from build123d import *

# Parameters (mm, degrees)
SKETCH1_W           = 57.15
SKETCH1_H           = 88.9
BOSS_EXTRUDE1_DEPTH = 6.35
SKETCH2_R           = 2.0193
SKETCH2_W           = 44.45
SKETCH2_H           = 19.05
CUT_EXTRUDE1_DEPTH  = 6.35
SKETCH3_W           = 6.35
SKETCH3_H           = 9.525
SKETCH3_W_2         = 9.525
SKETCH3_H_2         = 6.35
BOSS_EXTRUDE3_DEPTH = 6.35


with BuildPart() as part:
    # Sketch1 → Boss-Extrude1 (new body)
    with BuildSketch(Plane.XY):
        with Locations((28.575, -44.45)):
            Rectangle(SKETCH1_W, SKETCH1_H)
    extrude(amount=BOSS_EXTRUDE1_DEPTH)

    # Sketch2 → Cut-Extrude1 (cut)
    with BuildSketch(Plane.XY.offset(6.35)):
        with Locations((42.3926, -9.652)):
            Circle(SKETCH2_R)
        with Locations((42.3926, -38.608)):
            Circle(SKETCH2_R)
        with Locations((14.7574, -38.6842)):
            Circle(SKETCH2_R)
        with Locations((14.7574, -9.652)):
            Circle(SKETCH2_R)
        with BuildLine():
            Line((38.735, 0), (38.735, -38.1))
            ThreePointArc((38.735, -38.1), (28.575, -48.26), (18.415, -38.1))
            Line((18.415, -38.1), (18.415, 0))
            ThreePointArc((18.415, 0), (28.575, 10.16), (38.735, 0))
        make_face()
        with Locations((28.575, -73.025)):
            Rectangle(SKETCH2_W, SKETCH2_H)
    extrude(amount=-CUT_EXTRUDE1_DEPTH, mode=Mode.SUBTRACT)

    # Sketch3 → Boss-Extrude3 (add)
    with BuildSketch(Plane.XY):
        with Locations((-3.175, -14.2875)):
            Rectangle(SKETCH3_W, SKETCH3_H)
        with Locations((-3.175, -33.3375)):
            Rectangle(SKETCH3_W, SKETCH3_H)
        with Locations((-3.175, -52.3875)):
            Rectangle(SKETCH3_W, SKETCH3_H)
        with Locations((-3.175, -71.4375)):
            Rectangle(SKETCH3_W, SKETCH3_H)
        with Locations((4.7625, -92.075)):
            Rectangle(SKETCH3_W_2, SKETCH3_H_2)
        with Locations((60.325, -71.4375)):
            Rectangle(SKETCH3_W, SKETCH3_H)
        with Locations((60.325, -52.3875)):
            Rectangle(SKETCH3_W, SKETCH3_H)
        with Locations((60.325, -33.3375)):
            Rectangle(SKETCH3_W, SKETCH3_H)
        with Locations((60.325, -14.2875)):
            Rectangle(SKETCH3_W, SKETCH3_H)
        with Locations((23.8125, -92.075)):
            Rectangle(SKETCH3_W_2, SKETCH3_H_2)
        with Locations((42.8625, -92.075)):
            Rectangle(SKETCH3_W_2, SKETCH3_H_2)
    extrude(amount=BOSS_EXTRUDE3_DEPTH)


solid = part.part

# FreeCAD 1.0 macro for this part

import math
import FreeCAD as App
import Part
import Sketcher
from FreeCAD import Vector
Q = App.Units.Quantity

doc = App.newDocument("Part")
body = doc.addObject("PartDesign::Body", "Body")

sketch1 = doc.addObject("Sketcher::SketchObject", "Sketch")
body.addObject(sketch1)
sketch1.AttachmentSupport = (doc.XY_Plane, [""])
sketch1.MapMode = "FlatFace"
sketch1.addGeometry(Part.LineSegment(Vector(0, 0, 0), Vector(0, -89, 0)), False)
sketch1.addGeometry(Part.LineSegment(Vector(0, -89, 0), Vector(57, -89, 0)), False)
sketch1.addGeometry(Part.LineSegment(Vector(57, -89, 0), Vector(57, 0, 0)), False)
sketch1.addGeometry(Part.LineSegment(Vector(57, 0, 0), Vector(0, 0, 0)), False)
sketch1.addConstraint(Sketcher.Constraint("Coincident", 0, 2, 1, 1))
sketch1.addConstraint(Sketcher.Constraint("Coincident", 1, 2, 2, 1))
sketch1.addConstraint(Sketcher.Constraint("Coincident", 2, 2, 3, 1))
sketch1.addConstraint(Sketcher.Constraint("Coincident", 3, 2, 0, 1))
sketch1.addConstraint(Sketcher.Constraint("Vertical", 0))
sketch1.addConstraint(Sketcher.Constraint("Horizontal", 1))
sketch1.addConstraint(Sketcher.Constraint("Vertical", 2))
sketch1.addConstraint(Sketcher.Constraint("Horizontal", 3))
sketch1.addConstraint(Sketcher.Constraint("Coincident", 3, 2, -1, 1))
sketch1.addConstraint(Sketcher.Constraint("DistanceY", 0, 2, 0, 1, Q("3.5 in")))
sketch1.addConstraint(Sketcher.Constraint("DistanceX", 1, 1, 1, 2, Q("2.25 in")))
pad1 = doc.addObject("PartDesign::Pad", "Pad")
body.addObject(pad1)
pad1.Profile = sketch1
pad1.Length = Q("0.25 in")

sketch2 = doc.addObject("Sketcher::SketchObject", "Sketch001")
body.addObject(sketch2)
sketch2.AttachmentSupport = (doc.XY_Plane, [""])
sketch2.MapMode = "FlatFace"
sketch2.AttachmentOffset = App.Placement(Vector(0, 0, 0.25 * 25.4), App.Rotation())
sketch2.addGeometry(Part.Circle(Vector(42.4, -9.7, 0), Vector(0, 0, 1), 2), False)
sketch2.addGeometry(Part.Circle(Vector(42.4, -38.6, 0), Vector(0, 0, 1), 2), False)
sketch2.addGeometry(Part.Circle(Vector(14.8, -38.7, 0), Vector(0, 0, 1), 2), False)
sketch2.addGeometry(Part.Circle(Vector(14.8, -9.7, 0), Vector(0, 0, 1), 2), False)
sketch2.addGeometry(Part.LineSegment(Vector(38.7, -38.1, 0), Vector(38.7, 0, 0)), False)
sketch2.addGeometry(Part.ArcOfCircle(Part.Circle(Vector(28.6, 0, 0), Vector(0, 0, 1), 10.2), math.radians(0), math.radians(180)), False)
sketch2.addGeometry(Part.LineSegment(Vector(18.4, 0, 0), Vector(18.4, -38.1, 0)), False)
sketch2.addGeometry(Part.ArcOfCircle(Part.Circle(Vector(28.6, -38.1, 0), Vector(0, 0, 1), 10.2), math.radians(180), math.radians(360)), False)
sketch2.addGeometry(Part.LineSegment(Vector(6.3, -63.5, 0), Vector(6.3, -82.5, 0)), False)
sketch2.addGeometry(Part.LineSegment(Vector(6.3, -82.5, 0), Vector(50.8, -82.5, 0)), False)
sketch2.addGeometry(Part.LineSegment(Vector(50.8, -82.5, 0), Vector(50.8, -63.5, 0)), False)
sketch2.addGeometry(Part.LineSegment(Vector(50.8, -63.5, 0), Vector(6.3, -63.5, 0)), False)
sketch2.addConstraint(Sketcher.Constraint("Tangent", 4, 2, 5, 1))
sketch2.addConstraint(Sketcher.Constraint("Tangent", 5, 2, 6, 1))
sketch2.addConstraint(Sketcher.Constraint("Tangent", 6, 2, 7, 1))
sketch2.addConstraint(Sketcher.Constraint("Tangent", 7, 2, 4, 1))
sketch2.addConstraint(Sketcher.Constraint("Coincident", 8, 2, 9, 1))
sketch2.addConstraint(Sketcher.Constraint("Coincident", 9, 2, 10, 1))
sketch2.addConstraint(Sketcher.Constraint("Coincident", 10, 2, 11, 1))
sketch2.addConstraint(Sketcher.Constraint("Coincident", 11, 2, 8, 1))
sketch2.addConstraint(Sketcher.Constraint("Vertical", 4))
sketch2.addConstraint(Sketcher.Constraint("Vertical", 6))
sketch2.addConstraint(Sketcher.Constraint("Vertical", 8))
sketch2.addConstraint(Sketcher.Constraint("Horizontal", 9))
sketch2.addConstraint(Sketcher.Constraint("Vertical", 10))
sketch2.addConstraint(Sketcher.Constraint("Horizontal", 11))
sketch2.addConstraint(Sketcher.Constraint("Equal", 0, 1))
sketch2.addConstraint(Sketcher.Constraint("Equal", 1, 2))
sketch2.addConstraint(Sketcher.Constraint("Equal", 2, 3))
sketch2.addConstraint(Sketcher.Constraint("PointOnObject", 5, 3, -1))
sketch2.addConstraint(Sketcher.Constraint("Horizontal", 0, 3, 3, 3))
sketch2.addConstraint(Sketcher.Constraint("Vertical", 0, 3, 1, 3))
sketch2.addConstraint(Sketcher.Constraint("Vertical", 2, 3, 3, 3))
sketch2.addConstraint(Sketcher.Constraint("Radius", 5, Q("0.4 in")))
sketch2.addConstraint(Sketcher.Constraint("Diameter", 0, Q("0.159 in")))
sketch2.addConstraint(Sketcher.Constraint("DistanceY", 4, 1, 4, 2, Q("1.5 in")))
sketch2.addConstraint(Sketcher.Constraint("DistanceX", -1, 1, 9, 2, Q("2 in")))
sketch2.addConstraint(Sketcher.Constraint("DistanceY", 10, 2, 7, 2, Q("1 in")))
sketch2.addConstraint(Sketcher.Constraint("DistanceX", 9, 1, 9, 2, Q("1.75 in")))
sketch2.addConstraint(Sketcher.Constraint("DistanceY", 8, 2, 8, 1, Q("0.75 in")))
sketch2.addConstraint(Sketcher.Constraint("DistanceY", 0, 3, -1, 1, Q("0.38 in")))
sketch2.addConstraint(Sketcher.Constraint("DistanceY", 1, 3, -1, 1, Q("1.52 in")))
sketch2.addConstraint(Sketcher.Constraint("DistanceX", -1, 1, 0, 3, Q("1.669 in")))
sketch2.addConstraint(Sketcher.Constraint("DistanceX", -1, 1, 2, 3, Q("0.581 in")))
sketch2.addConstraint(Sketcher.Constraint("DistanceY", 2, 3, -1, 1, Q("1.523 in")))
sketch2.addConstraint(Sketcher.Constraint("DistanceX", -1, 1, 5, 3, Q("1.125 in")))
pocket1 = doc.addObject("PartDesign::Pocket", "Pocket")
body.addObject(pocket1)
pocket1.Profile = sketch2
pocket1.Length = Q("0.25 in")

sketch3 = doc.addObject("Sketcher::SketchObject", "Sketch002")
body.addObject(sketch3)
sketch3.AttachmentSupport = (doc.XY_Plane, [""])
sketch3.MapMode = "FlatFace"
sketch3.addGeometry(Part.LineSegment(Vector(-6, -10, 0), Vector(-6, -19, 0)), False)
sketch3.addGeometry(Part.LineSegment(Vector(-6, -19, 0), Vector(0, -19, 0)), False)
sketch3.addGeometry(Part.LineSegment(Vector(0, -19, 0), Vector(0, -10, 0)), False)
sketch3.addGeometry(Part.LineSegment(Vector(0, -10, 0), Vector(-6, -10, 0)), False)
sketch3.addGeometry(Part.LineSegment(Vector(-6, -29, 0), Vector(-6, -38, 0)), False)
sketch3.addGeometry(Part.LineSegment(Vector(-6, -38, 0), Vector(0, -38, 0)), False)
sketch3.addGeometry(Part.LineSegment(Vector(0, -38, 0), Vector(0, -29, 0)), False)
sketch3.addGeometry(Part.LineSegment(Vector(0, -29, 0), Vector(-6, -29, 0)), False)
sketch3.addGeometry(Part.LineSegment(Vector(-6, -48, 0), Vector(-6, -57, 0)), False)
sketch3.addGeometry(Part.LineSegment(Vector(-6, -57, 0), Vector(0, -57, 0)), False)
sketch3.addGeometry(Part.LineSegment(Vector(0, -57, 0), Vector(0, -48, 0)), False)
sketch3.addGeometry(Part.LineSegment(Vector(0, -48, 0), Vector(-6, -48, 0)), False)
sketch3.addGeometry(Part.LineSegment(Vector(-6, -67, 0), Vector(-6, -76, 0)), False)
sketch3.addGeometry(Part.LineSegment(Vector(-6, -76, 0), Vector(0, -76, 0)), False)
sketch3.addGeometry(Part.LineSegment(Vector(0, -76, 0), Vector(0, -67, 0)), False)
sketch3.addGeometry(Part.LineSegment(Vector(0, -67, 0), Vector(-6, -67, 0)), False)
sketch3.addGeometry(Part.LineSegment(Vector(0, -89, 0), Vector(0, -95, 0)), False)
sketch3.addGeometry(Part.LineSegment(Vector(0, -95, 0), Vector(10, -95, 0)), False)
sketch3.addGeometry(Part.LineSegment(Vector(10, -95, 0), Vector(10, -89, 0)), False)
sketch3.addGeometry(Part.LineSegment(Vector(10, -89, 0), Vector(0, -89, 0)), False)
sketch3.addGeometry(Part.LineSegment(Vector(57, -67, 0), Vector(57, -76, 0)), False)
sketch3.addGeometry(Part.LineSegment(Vector(57, -76, 0), Vector(64, -76, 0)), False)
sketch3.addGeometry(Part.LineSegment(Vector(64, -76, 0), Vector(64, -67, 0)), False)
sketch3.addGeometry(Part.LineSegment(Vector(64, -67, 0), Vector(57, -67, 0)), False)
sketch3.addGeometry(Part.LineSegment(Vector(57, -48, 0), Vector(57, -57, 0)), False)
sketch3.addGeometry(Part.LineSegment(Vector(57, -57, 0), Vector(64, -57, 0)), False)
sketch3.addGeometry(Part.LineSegment(Vector(64, -57, 0), Vector(64, -48, 0)), False)
sketch3.addGeometry(Part.LineSegment(Vector(64, -48, 0), Vector(57, -48, 0)), False)
sketch3.addGeometry(Part.LineSegment(Vector(57, -29, 0), Vector(57, -38, 0)), False)
sketch3.addGeometry(Part.LineSegment(Vector(57, -38, 0), Vector(64, -38, 0)), False)
sketch3.addGeometry(Part.LineSegment(Vector(64, -38, 0), Vector(64, -29, 0)), False)
sketch3.addGeometry(Part.LineSegment(Vector(64, -29, 0), Vector(57, -29, 0)), False)
sketch3.addGeometry(Part.LineSegment(Vector(57, -10, 0), Vector(57, -19, 0)), False)
sketch3.addGeometry(Part.LineSegment(Vector(57, -19, 0), Vector(64, -19, 0)), False)
sketch3.addGeometry(Part.LineSegment(Vector(64, -19, 0), Vector(64, -10, 0)), False)
sketch3.addGeometry(Part.LineSegment(Vector(64, -10, 0), Vector(57, -10, 0)), False)
sketch3.addGeometry(Part.LineSegment(Vector(19, -89, 0), Vector(19, -95, 0)), False)
sketch3.addGeometry(Part.LineSegment(Vector(19, -95, 0), Vector(29, -95, 0)), False)
sketch3.addGeometry(Part.LineSegment(Vector(29, -95, 0), Vector(29, -89, 0)), False)
sketch3.addGeometry(Part.LineSegment(Vector(29, -89, 0), Vector(19, -89, 0)), False)
sketch3.addGeometry(Part.LineSegment(Vector(38, -89, 0), Vector(38, -95, 0)), False)
sketch3.addGeometry(Part.LineSegment(Vector(38, -95, 0), Vector(48, -95, 0)), False)
sketch3.addGeometry(Part.LineSegment(Vector(48, -95, 0), Vector(48, -89, 0)), False)
sketch3.addGeometry(Part.LineSegment(Vector(48, -89, 0), Vector(38, -89, 0)), False)
sketch3.addConstraint(Sketcher.Constraint("Coincident", 0, 2, 1, 1))
sketch3.addConstraint(Sketcher.Constraint("Coincident", 1, 2, 2, 1))
sketch3.addConstraint(Sketcher.Constraint("Coincident", 2, 2, 3, 1))
sketch3.addConstraint(Sketcher.Constraint("Coincident", 3, 2, 0, 1))
sketch3.addConstraint(Sketcher.Constraint("Coincident", 4, 2, 5, 1))
sketch3.addConstraint(Sketcher.Constraint("Coincident", 5, 2, 6, 1))
sketch3.addConstraint(Sketcher.Constraint("Coincident", 6, 2, 7, 1))
sketch3.addConstraint(Sketcher.Constraint("Coincident", 7, 2, 4, 1))
sketch3.addConstraint(Sketcher.Constraint("Coincident", 8, 2, 9, 1))
sketch3.addConstraint(Sketcher.Constraint("Coincident", 9, 2, 10, 1))
sketch3.addConstraint(Sketcher.Constraint("Coincident", 10, 2, 11, 1))
sketch3.addConstraint(Sketcher.Constraint("Coincident", 11, 2, 8, 1))
sketch3.addConstraint(Sketcher.Constraint("Coincident", 12, 2, 13, 1))
sketch3.addConstraint(Sketcher.Constraint("Coincident", 13, 2, 14, 1))
sketch3.addConstraint(Sketcher.Constraint("Coincident", 14, 2, 15, 1))
sketch3.addConstraint(Sketcher.Constraint("Coincident", 15, 2, 12, 1))
sketch3.addConstraint(Sketcher.Constraint("Coincident", 16, 2, 17, 1))
sketch3.addConstraint(Sketcher.Constraint("Coincident", 17, 2, 18, 1))
sketch3.addConstraint(Sketcher.Constraint("Coincident", 18, 2, 19, 1))
sketch3.addConstraint(Sketcher.Constraint("Coincident", 19, 2, 16, 1))
sketch3.addConstraint(Sketcher.Constraint("Coincident", 20, 2, 21, 1))
sketch3.addConstraint(Sketcher.Constraint("Coincident", 21, 2, 22, 1))
sketch3.addConstraint(Sketcher.Constraint("Coincident", 22, 2, 23, 1))
sketch3.addConstraint(Sketcher.Constraint("Coincident", 23, 2, 20, 1))
sketch3.addConstraint(Sketcher.Constraint("Coincident", 24, 2, 25, 1))
sketch3.addConstraint(Sketcher.Constraint("Coincident", 25, 2, 26, 1))
sketch3.addConstraint(Sketcher.Constraint("Coincident", 26, 2, 27, 1))
sketch3.addConstraint(Sketcher.Constraint("Coincident", 27, 2, 24, 1))
sketch3.addConstraint(Sketcher.Constraint("Coincident", 28, 2, 29, 1))
sketch3.addConstraint(Sketcher.Constraint("Coincident", 29, 2, 30, 1))
sketch3.addConstraint(Sketcher.Constraint("Coincident", 30, 2, 31, 1))
sketch3.addConstraint(Sketcher.Constraint("Coincident", 31, 2, 28, 1))
sketch3.addConstraint(Sketcher.Constraint("Coincident", 32, 2, 33, 1))
sketch3.addConstraint(Sketcher.Constraint("Coincident", 33, 2, 34, 1))
sketch3.addConstraint(Sketcher.Constraint("Coincident", 34, 2, 35, 1))
sketch3.addConstraint(Sketcher.Constraint("Coincident", 35, 2, 32, 1))
sketch3.addConstraint(Sketcher.Constraint("Coincident", 36, 2, 37, 1))
sketch3.addConstraint(Sketcher.Constraint("Coincident", 37, 2, 38, 1))
sketch3.addConstraint(Sketcher.Constraint("Coincident", 38, 2, 39, 1))
sketch3.addConstraint(Sketcher.Constraint("Coincident", 39, 2, 36, 1))
sketch3.addConstraint(Sketcher.Constraint("Coincident", 40, 2, 41, 1))
sketch3.addConstraint(Sketcher.Constraint("Coincident", 41, 2, 42, 1))
sketch3.addConstraint(Sketcher.Constraint("Coincident", 42, 2, 43, 1))
sketch3.addConstraint(Sketcher.Constraint("Coincident", 43, 2, 40, 1))
sketch3.addConstraint(Sketcher.Constraint("Vertical", 0))
sketch3.addConstraint(Sketcher.Constraint("Horizontal", 1))
sketch3.addConstraint(Sketcher.Constraint("Vertical", 2))
sketch3.addConstraint(Sketcher.Constraint("Horizontal", 3))
sketch3.addConstraint(Sketcher.Constraint("Vertical", 4))
sketch3.addConstraint(Sketcher.Constraint("Horizontal", 5))
sketch3.addConstraint(Sketcher.Constraint("Vertical", 6))
sketch3.addConstraint(Sketcher.Constraint("Horizontal", 7))
sketch3.addConstraint(Sketcher.Constraint("Vertical", 8))
sketch3.addConstraint(Sketcher.Constraint("Horizontal", 9))
sketch3.addConstraint(Sketcher.Constraint("Vertical", 10))
sketch3.addConstraint(Sketcher.Constraint("Horizontal", 11))
sketch3.addConstraint(Sketcher.Constraint("Vertical", 12))
sketch3.addConstraint(Sketcher.Constraint("Horizontal", 13))
sketch3.addConstraint(Sketcher.Constraint("Vertical", 14))
sketch3.addConstraint(Sketcher.Constraint("Horizontal", 15))
sketch3.addConstraint(Sketcher.Constraint("Vertical", 16))
sketch3.addConstraint(Sketcher.Constraint("Horizontal", 17))
sketch3.addConstraint(Sketcher.Constraint("Vertical", 18))
sketch3.addConstraint(Sketcher.Constraint("Horizontal", 19))
sketch3.addConstraint(Sketcher.Constraint("Vertical", 20))
sketch3.addConstraint(Sketcher.Constraint("Horizontal", 21))
sketch3.addConstraint(Sketcher.Constraint("Vertical", 22))
sketch3.addConstraint(Sketcher.Constraint("Horizontal", 23))
sketch3.addConstraint(Sketcher.Constraint("Vertical", 24))
sketch3.addConstraint(Sketcher.Constraint("Horizontal", 25))
sketch3.addConstraint(Sketcher.Constraint("Vertical", 26))
sketch3.addConstraint(Sketcher.Constraint("Horizontal", 27))
sketch3.addConstraint(Sketcher.Constraint("Vertical", 28))
sketch3.addConstraint(Sketcher.Constraint("Horizontal", 29))
sketch3.addConstraint(Sketcher.Constraint("Vertical", 30))
sketch3.addConstraint(Sketcher.Constraint("Horizontal", 31))
sketch3.addConstraint(Sketcher.Constraint("Vertical", 32))
sketch3.addConstraint(Sketcher.Constraint("Horizontal", 33))
sketch3.addConstraint(Sketcher.Constraint("Vertical", 34))
sketch3.addConstraint(Sketcher.Constraint("Horizontal", 35))
sketch3.addConstraint(Sketcher.Constraint("Vertical", 36))
sketch3.addConstraint(Sketcher.Constraint("Horizontal", 37))
sketch3.addConstraint(Sketcher.Constraint("Vertical", 38))
sketch3.addConstraint(Sketcher.Constraint("Horizontal", 39))
sketch3.addConstraint(Sketcher.Constraint("Vertical", 40))
sketch3.addConstraint(Sketcher.Constraint("Horizontal", 41))
sketch3.addConstraint(Sketcher.Constraint("Vertical", 42))
sketch3.addConstraint(Sketcher.Constraint("Horizontal", 43))
sketch3.addConstraint(Sketcher.Constraint("PointOnObject", 1, 2, -2))
sketch3.addConstraint(Sketcher.Constraint("PointOnObject", 5, 2, -2))
sketch3.addConstraint(Sketcher.Constraint("PointOnObject", 9, 2, -2))
sketch3.addConstraint(Sketcher.Constraint("PointOnObject", 13, 2, -2))
sketch3.addConstraint(Sketcher.Constraint("PointOnObject", 16, 2, -2))
sketch3.addConstraint(Sketcher.Constraint("Horizontal", 13, 2, 20, 2))
sketch3.addConstraint(Sketcher.Constraint("Horizontal", 15, 2, 22, 2))
sketch3.addConstraint(Sketcher.Constraint("Horizontal", 9, 2, 24, 2))
sketch3.addConstraint(Sketcher.Constraint("Horizontal", 11, 2, 26, 2))
sketch3.addConstraint(Sketcher.Constraint("Horizontal", 5, 2, 28, 2))
sketch3.addConstraint(Sketcher.Constraint("Horizontal", 7, 2, 30, 2))
sketch3.addConstraint(Sketcher.Constraint("Horizontal", 1, 2, 32, 2))
sketch3.addConstraint(Sketcher.Constraint("Horizontal", 3, 2, 34, 2))
sketch3.addConstraint(Sketcher.Constraint("Horizontal", 17, 2, 36, 2))
sketch3.addConstraint(Sketcher.Constraint("Horizontal", 19, 2, 38, 2))
sketch3.addConstraint(Sketcher.Constraint("Horizontal", 37, 2, 40, 2))
sketch3.addConstraint(Sketcher.Constraint("Horizontal", 39, 2, 42, 2))
sketch3.addConstraint(Sketcher.Constraint("Vertical", 3, 2, 4, 2))
sketch3.addConstraint(Sketcher.Constraint("Vertical", 7, 2, 8, 2))
sketch3.addConstraint(Sketcher.Constraint("Vertical", 11, 2, 12, 2))
sketch3.addConstraint(Sketcher.Constraint("Vertical", 23, 2, 24, 2))
sketch3.addConstraint(Sketcher.Constraint("Vertical", 22, 2, 25, 2))
sketch3.addConstraint(Sketcher.Constraint("Vertical", 27, 2, 28, 2))
sketch3.addConstraint(Sketcher.Constraint("Vertical", 26, 2, 29, 2))
sketch3.addConstraint(Sketcher.Constraint("Vertical", 31, 2, 32, 2))
sketch3.addConstraint(Sketcher.Constraint("Vertical", 30, 2, 33, 2))
sketch3.addConstraint(Sketcher.Constraint("Equal", 15, 21))
sketch3.addConstraint(Sketcher.Constraint("Equal", 19, 37))
sketch3.addConstraint(Sketcher.Constraint("Equal", 39, 41))
sketch3.addConstraint(Sketcher.Constraint("Equal", 43, 0))
sketch3.addConstraint(Sketcher.Constraint("Equal", 2, 4))
sketch3.addConstraint(Sketcher.Constraint("Equal", 6, 8))
sketch3.addConstraint(Sketcher.Constraint("Equal", 10, 12))
sketch3.addConstraint(Sketcher.Constraint("Equal", 35, 16))
sketch3.addConstraint(Sketcher.Constraint("DistanceY", 12, 2, -1, 1, Q("3 in")))
sketch3.addConstraint(Sketcher.Constraint("DistanceX", 1, 1, 1, 2, Q("0.25 in")))
sketch3.addConstraint(Sketcher.Constraint("DistanceY", 4, 2, -1, 1, Q("1.5 in")))
sketch3.addConstraint(Sketcher.Constraint("DistanceY", 18, 2, -1, 1, Q("3.5 in")))
sketch3.addConstraint(Sketcher.Constraint("DistanceX", -1, 1, 21, 2, Q("2.5 in")))
sketch3.addConstraint(Sketcher.Constraint("DistanceX", -1, 1, 40, 2, Q("1.5 in")))
sketch3.addConstraint(Sketcher.Constraint("DistanceY", 8, 2, 0, 2, Q("1.5 in")))
sketch3.addConstraint(Sketcher.Constraint("DistanceY", 16, 2, 9, 2, Q("1.5 in")))
sketch3.addConstraint(Sketcher.Constraint("DistanceX", 17, 1, 17, 2, Q("0.375 in")))
sketch3.addConstraint(Sketcher.Constraint("DistanceX", -1, 1, 36, 2, Q("0.75 in")))
pad2 = doc.addObject("PartDesign::Pad", "Pad001")
body.addObject(pad2)
pad2.Profile = sketch3
pad2.Length = Q("0.25 in")

doc.recompute()
